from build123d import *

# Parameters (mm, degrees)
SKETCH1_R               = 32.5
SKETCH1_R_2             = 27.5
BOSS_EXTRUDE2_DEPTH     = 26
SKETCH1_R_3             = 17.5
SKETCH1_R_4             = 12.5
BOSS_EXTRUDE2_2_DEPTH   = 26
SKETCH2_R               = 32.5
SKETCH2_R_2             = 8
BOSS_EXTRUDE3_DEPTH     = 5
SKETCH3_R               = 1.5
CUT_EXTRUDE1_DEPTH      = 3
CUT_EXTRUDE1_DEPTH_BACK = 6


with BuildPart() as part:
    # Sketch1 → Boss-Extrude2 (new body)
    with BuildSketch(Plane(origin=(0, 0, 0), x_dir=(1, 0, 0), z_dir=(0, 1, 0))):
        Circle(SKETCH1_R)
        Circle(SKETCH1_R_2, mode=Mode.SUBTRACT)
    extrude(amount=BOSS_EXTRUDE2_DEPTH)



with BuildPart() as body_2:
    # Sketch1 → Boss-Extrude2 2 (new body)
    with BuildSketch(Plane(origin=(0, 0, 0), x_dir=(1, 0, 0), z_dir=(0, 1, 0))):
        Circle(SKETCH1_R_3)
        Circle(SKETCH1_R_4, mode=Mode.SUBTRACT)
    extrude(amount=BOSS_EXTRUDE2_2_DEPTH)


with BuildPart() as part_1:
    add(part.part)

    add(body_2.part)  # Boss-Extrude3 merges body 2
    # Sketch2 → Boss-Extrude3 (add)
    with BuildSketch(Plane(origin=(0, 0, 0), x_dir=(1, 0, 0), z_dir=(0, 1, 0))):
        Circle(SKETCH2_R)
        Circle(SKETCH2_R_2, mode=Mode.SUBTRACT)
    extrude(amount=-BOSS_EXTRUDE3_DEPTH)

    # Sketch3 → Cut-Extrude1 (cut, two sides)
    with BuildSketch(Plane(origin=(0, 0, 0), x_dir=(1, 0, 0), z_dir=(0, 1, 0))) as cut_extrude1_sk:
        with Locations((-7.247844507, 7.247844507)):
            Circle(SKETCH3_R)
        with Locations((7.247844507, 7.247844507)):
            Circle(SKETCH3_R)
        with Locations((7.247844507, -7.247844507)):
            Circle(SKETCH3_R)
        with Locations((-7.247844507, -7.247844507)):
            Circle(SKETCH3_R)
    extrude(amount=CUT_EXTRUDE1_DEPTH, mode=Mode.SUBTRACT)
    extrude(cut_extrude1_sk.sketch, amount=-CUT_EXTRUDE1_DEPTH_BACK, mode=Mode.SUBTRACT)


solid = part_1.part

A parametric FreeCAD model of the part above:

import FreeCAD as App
import Part
import Sketcher

V = App.Vector

doc = App.newDocument("Part")
body = doc.addObject("PartDesign::Body", "Body")

sketch1 = body.newObject("Sketcher::SketchObject", "Sketch")
sketch1.AttachmentSupport = (doc.getObject("XZ_Plane"), [""])
sketch1.MapMode = "FlatFace"
sketch1.addGeometry([
    Part.Circle(V(0, 0, 0), V(0, 0, 1), 32.5),
    Part.Circle(V(0, 0, 0), V(0, 0, 1), 27.5),
], False)
sketch1.addConstraint([
    Sketcher.Constraint("Coincident", 0, 3, -1, 1),
    Sketcher.Constraint("Coincident", 1, 3, -1, 1),
    Sketcher.Constraint("Diameter", 0, 65.0),
    Sketcher.Constraint("Diameter", 1, 55.0),
])
pad1 = body.newObject("PartDesign::Pad", "Pad")
pad1.Profile = sketch1
pad1.Length = 26
pad1.Reversed = True
body2 = doc.addObject("PartDesign::Body", "Body001")

sketch2 = body2.newObject("Sketcher::SketchObject", "Sketch001")
sketch2.AttachmentSupport = (doc.getObject("XZ_Plane001"), [""])
sketch2.MapMode = "FlatFace"
sketch2.addGeometry([
    Part.Circle(V(0, 0, 0), V(0, 0, 1), 17.5),
    Part.Circle(V(0, 0, 0), V(0, 0, 1), 12.5),
], False)
sketch2.addConstraint([
    Sketcher.Constraint("Coincident", 0, 3, -1, 1),
    Sketcher.Constraint("Coincident", 1, 3, -1, 1),
    Sketcher.Constraint("Diameter", 0, 35.0),
    Sketcher.Constraint("Diameter", 1, 25.0),
])
pad2 = body2.newObject("PartDesign::Pad", "Pad001")
pad2.Profile = sketch2
pad2.Length = 26
pad2.Reversed = True
body.AllowCompound = True
doc.recompute()

boolean = body.newObject("PartDesign::Boolean", "Boolean")
boolean.Type = "Fuse"
boolean.addObjects([body2])

sketch3 = body.newObject("Sketcher::SketchObject", "Sketch002")
sketch3.AttachmentSupport = (doc.getObject("XZ_Plane"), [""])
sketch3.MapMode = "FlatFace"
sketch3.addGeometry([
    Part.Circle(V(0, 0, 0), V(0, 0, 1), 32.5),
    Part.Circle(V(0, 0, 0), V(0, 0, 1), 8),
], False)
sketch3.addConstraint([
    Sketcher.Constraint("Coincident", 0, 3, -1, 1),
    Sketcher.Constraint("Coincident", 1, 3, -1, 1),
    Sketcher.Constraint("Diameter", 0, 65.0),
    Sketcher.Constraint("Diameter", 1, 16.0),
])
pad3 = body.newObject("PartDesign::Pad", "Pad002")
pad3.Profile = sketch3
pad3.Length = 5

sketch4 = body.newObject("Sketcher::SketchObject", "Sketch003")
sketch4.AttachmentSupport = (doc.getObject("XZ_Plane"), [""])
sketch4.MapMode = "FlatFace"
sketch4.addGeometry([
    Part.Circle(V(-7.247845, -7.247845, 0), V(0, 0, 1), 1.5),
    Part.Circle(V(7.247845, -7.247845, 0), V(0, 0, 1), 1.5),
    Part.Circle(V(7.247845, 7.247845, 0), V(0, 0, 1), 1.5),
    Part.Circle(V(-7.247845, 7.247845, 0), V(0, 0, 1), 1.5),
], False)
sketch4.addConstraint([
    Sketcher.Constraint("Equal", 0, 1),
    Sketcher.Constraint("Equal", 1, 2),
    Sketcher.Constraint("Equal", 2, 3),
    Sketcher.Constraint("Symmetric", 0, 3, 2, 3, -1, 1),
    Sketcher.Constraint("Symmetric", 1, 3, 3, 3, -1, 1),
    Sketcher.Constraint("Symmetric", 0, 3, 1, 3, -2),
    Sketcher.Constraint("Diameter", 0, 3.0),
    Sketcher.Constraint("DistanceX", 0, 3, 1, 3, 14.495689),
    Sketcher.Constraint("DistanceY", 1, 3, 2, 3, 14.495689),
])
pocket1 = body.newObject("PartDesign::Pocket", "Pocket")
pocket1.Profile = sketch4
pocket1.Type = "ThroughAll"
pocket1.Midplane = True

doc.recompute()
